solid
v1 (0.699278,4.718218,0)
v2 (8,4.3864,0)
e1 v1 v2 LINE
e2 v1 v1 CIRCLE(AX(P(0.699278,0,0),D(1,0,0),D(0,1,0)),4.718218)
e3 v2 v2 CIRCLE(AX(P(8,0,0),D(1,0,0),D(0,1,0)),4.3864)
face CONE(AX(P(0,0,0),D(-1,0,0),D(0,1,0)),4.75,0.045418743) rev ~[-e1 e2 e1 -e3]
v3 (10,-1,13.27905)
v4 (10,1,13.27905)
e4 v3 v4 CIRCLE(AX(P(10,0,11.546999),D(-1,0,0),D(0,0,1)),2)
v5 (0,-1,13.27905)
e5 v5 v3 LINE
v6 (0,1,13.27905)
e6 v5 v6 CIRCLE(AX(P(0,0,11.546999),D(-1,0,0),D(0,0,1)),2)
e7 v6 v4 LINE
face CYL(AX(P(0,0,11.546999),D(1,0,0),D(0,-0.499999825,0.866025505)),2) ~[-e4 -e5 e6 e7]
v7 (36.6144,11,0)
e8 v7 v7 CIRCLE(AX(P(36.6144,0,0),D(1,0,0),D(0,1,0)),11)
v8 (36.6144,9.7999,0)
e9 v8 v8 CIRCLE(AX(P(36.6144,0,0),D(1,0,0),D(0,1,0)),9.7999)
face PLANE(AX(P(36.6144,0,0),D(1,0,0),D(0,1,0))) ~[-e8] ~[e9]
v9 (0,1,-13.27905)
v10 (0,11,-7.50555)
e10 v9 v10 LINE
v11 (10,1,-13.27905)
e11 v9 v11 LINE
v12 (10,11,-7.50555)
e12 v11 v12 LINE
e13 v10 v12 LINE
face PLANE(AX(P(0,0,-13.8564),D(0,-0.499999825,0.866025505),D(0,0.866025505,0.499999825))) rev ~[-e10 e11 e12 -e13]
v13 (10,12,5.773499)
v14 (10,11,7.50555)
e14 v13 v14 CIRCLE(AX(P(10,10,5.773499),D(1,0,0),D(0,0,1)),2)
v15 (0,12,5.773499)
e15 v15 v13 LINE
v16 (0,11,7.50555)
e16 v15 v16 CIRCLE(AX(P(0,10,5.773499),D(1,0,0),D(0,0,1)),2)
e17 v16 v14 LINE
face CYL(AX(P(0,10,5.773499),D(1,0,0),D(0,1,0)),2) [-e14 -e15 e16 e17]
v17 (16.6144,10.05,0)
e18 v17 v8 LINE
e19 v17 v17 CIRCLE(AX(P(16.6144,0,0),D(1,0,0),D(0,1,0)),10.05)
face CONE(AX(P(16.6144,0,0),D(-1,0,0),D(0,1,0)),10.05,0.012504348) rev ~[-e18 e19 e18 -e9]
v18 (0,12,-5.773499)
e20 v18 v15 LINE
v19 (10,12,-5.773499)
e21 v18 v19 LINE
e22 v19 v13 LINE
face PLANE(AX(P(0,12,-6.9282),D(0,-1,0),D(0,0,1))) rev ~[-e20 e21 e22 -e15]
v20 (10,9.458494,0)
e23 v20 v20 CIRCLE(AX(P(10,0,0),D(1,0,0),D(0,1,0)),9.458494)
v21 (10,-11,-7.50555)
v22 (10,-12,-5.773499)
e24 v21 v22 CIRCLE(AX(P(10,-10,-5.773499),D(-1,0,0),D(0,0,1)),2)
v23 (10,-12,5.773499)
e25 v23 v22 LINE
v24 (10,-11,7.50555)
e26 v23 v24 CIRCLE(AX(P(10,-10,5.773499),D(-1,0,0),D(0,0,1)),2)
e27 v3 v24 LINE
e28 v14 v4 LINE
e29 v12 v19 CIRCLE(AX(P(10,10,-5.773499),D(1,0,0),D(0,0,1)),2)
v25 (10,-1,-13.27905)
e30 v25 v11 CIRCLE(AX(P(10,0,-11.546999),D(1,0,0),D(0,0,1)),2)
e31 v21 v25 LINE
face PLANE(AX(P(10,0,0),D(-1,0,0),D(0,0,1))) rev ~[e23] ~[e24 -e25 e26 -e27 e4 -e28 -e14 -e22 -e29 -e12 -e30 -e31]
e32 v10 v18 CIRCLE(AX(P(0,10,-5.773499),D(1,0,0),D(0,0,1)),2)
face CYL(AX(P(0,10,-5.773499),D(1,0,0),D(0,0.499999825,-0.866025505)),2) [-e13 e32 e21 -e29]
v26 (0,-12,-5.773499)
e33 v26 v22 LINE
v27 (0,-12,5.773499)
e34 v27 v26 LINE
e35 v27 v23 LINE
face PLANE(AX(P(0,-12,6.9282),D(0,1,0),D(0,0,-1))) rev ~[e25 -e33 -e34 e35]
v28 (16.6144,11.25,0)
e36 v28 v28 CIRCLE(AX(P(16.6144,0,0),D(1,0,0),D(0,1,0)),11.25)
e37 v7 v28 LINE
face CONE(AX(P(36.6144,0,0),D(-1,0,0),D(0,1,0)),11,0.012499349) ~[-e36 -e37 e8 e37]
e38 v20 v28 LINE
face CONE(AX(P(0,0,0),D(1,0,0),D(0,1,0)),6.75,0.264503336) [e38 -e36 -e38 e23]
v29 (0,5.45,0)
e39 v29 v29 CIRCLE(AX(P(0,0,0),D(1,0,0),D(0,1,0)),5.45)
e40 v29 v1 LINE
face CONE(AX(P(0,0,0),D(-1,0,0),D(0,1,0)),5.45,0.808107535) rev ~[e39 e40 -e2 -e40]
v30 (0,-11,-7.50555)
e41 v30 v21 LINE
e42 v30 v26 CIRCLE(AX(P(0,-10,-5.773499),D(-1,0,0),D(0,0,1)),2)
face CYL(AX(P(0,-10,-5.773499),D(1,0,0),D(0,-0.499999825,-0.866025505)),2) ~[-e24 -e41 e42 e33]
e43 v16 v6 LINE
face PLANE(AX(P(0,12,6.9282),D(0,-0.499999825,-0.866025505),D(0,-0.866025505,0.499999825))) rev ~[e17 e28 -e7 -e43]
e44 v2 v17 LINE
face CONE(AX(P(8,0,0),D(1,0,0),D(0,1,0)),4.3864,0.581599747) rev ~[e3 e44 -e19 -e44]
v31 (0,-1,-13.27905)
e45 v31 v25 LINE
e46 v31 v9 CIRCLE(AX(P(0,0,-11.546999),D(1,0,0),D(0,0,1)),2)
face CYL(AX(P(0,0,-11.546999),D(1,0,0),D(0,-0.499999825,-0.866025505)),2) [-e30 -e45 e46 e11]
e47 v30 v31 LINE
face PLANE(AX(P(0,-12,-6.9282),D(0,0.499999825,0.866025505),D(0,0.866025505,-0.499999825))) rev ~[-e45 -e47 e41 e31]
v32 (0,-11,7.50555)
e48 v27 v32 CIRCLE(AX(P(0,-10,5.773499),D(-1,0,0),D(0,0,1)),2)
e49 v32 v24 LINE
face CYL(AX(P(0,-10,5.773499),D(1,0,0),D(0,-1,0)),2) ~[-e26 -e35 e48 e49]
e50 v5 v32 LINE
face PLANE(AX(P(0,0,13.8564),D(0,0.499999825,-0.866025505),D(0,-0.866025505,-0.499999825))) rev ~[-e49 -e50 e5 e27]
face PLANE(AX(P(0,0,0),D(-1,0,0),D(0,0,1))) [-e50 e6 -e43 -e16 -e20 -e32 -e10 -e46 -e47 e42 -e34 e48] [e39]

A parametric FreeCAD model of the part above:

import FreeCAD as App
import Part
import Sketcher
Q = App.Units.Quantity


def edges_at(feature, points):
    """Names of the edges that pass closest to the given points."""
    edges = feature.Shape.Edges
    near = lambda p: min(range(len(edges)), key=lambda i: edges[i].distToShape(Part.Vertex(*p))[0])
    return sorted({f"Edge{near(p) + 1}" for p in points})

doc = App.newDocument("Part")
body = doc.addObject("PartDesign::Body", "Body")

# Sketch on XY plane
sketch1 = body.newObject("Sketcher::SketchObject", "Sketch")
sketch1.AttachmentSupport = (doc.getObject("XY_Plane"), [""])
sketch1.MapMode = "FlatFace"
sketch1.addGeometry(Part.LineSegment(App.Vector(0, 6.8, 0), App.Vector(0, 4.8, 0)), False)
sketch1.addGeometry(Part.LineSegment(App.Vector(0, 4.8, 0), App.Vector(8, 4.4, 0)), False)
sketch1.addGeometry(Part.LineSegment(App.Vector(8, 4.4, 0), App.Vector(16.6, 10.1, 0)), False)
sketch1.addGeometry(Part.LineSegment(App.Vector(16.6, 10.1, 0), App.Vector(36.6, 9.8, 0)), False)
sketch1.addGeometry(Part.LineSegment(App.Vector(36.6, 9.8, 0), App.Vector(36.6, 11, 0)), False)
sketch1.addGeometry(Part.LineSegment(App.Vector(36.6, 11, 0), App.Vector(16.6, 11.2, 0)), False)
sketch1.addGeometry(Part.LineSegment(App.Vector(16.6, 11.2, 0), App.Vector(0, 6.8, 0)), False)
sketch1.addConstraint(Sketcher.Constraint("Coincident", 0, 2, 1, 1))
sketch1.addConstraint(Sketcher.Constraint("Coincident", 1, 2, 2, 1))
sketch1.addConstraint(Sketcher.Constraint("Coincident", 2, 2, 3, 1))
sketch1.addConstraint(Sketcher.Constraint("Coincident", 3, 2, 4, 1))
sketch1.addConstraint(Sketcher.Constraint("Coincident", 4, 2, 5, 1))
sketch1.addConstraint(Sketcher.Constraint("Coincident", 5, 2, 6, 1))
sketch1.addConstraint(Sketcher.Constraint("Coincident", 6, 2, 0, 1))
sketch1.addConstraint(Sketcher.Constraint("Vertical", 0))
sketch1.addConstraint(Sketcher.Constraint("Vertical", 4))
sketch1.addConstraint(Sketcher.Constraint("PointOnObject", 0, 2, -2))
sketch1.addConstraint(Sketcher.Constraint("Parallel", 3, 5))
sketch1.addConstraint(Sketcher.Constraint("Vertical", 2, 2, 5, 2))
sketch1.addConstraint(Sketcher.Constraint("DistanceY", 0, 2, 0, 1, Q("2 mm")))
sketch1.addConstraint(Sketcher.Constraint("DistanceY", 4, 1, 4, 2, Q("1.2 mm")))
sketch1.addConstraint(Sketcher.Constraint("DistanceX", -1, 1, 1, 2, Q("8 mm")))
sketch1.addConstraint(Sketcher.Constraint("DistanceY", -1, 1, 4, 2, Q("11 mm")))
sketch1.addConstraint(Sketcher.Constraint("DistanceX", 2, 2, 3, 2, Q("20 mm")))
sketch1.addConstraint(Sketcher.Constraint("DistanceY", 6, 2, 2, 2, Q("3.3 mm")))
sketch1.addConstraint(Sketcher.Constraint("DistanceY", -1, 1, 0, 2, Q("4.75 mm")))
sketch1.addConstraint(Sketcher.Constraint("Distance", 6, Q("17.213 mm")))
sketch1.addConstraint(Sketcher.Constraint("Distance", 1, Q("8.0083 mm")))
revolution = body.newObject("PartDesign::Revolution", "Revolution")
revolution.Profile = sketch1
revolution.ReferenceAxis = (sketch1, ["H_Axis"])
revolution.Angle = 360
doc.recompute()

chamfer = body.newObject("PartDesign::Chamfer", "Chamfer")
chamfer.Base = (revolution, edges_at(revolution, [(0, -4.75, 0)]))
chamfer.Size = 0.7

# Sketch on YZ plane
sketch2 = body.newObject("Sketcher::SketchObject", "Sketch001")
sketch2.AttachmentSupport = (doc.getObject("YZ_Plane"), [""])
sketch2.MapMode = "FlatFace"
sketch2.addGeometry(Part.LineSegment(App.Vector(0, -14, 0), App.Vector(-12, -7, 0)), False)
sketch2.addGeometry(Part.LineSegment(App.Vector(-12, -7, 0), App.Vector(-12, 7, 0)), False)
sketch2.addGeometry(Part.LineSegment(App.Vector(-12, 7, 0), App.Vector(0, 14, 0)), False)
sketch2.addGeometry(Part.LineSegment(App.Vector(0, 14, 0), App.Vector(12, 7, 0)), False)
sketch2.addGeometry(Part.LineSegment(App.Vector(12, 7, 0), App.Vector(12, -7, 0)), False)
sketch2.addGeometry(Part.LineSegment(App.Vector(12, -7, 0), App.Vector(0, -14, 0)), False)
sketch2.addGeometry(Part.Circle(App.Vector(0, 0, 0), App.Vector(0, 0, 1), 7), False)
sketch2.addConstraint(Sketcher.Constraint("Coincident", 0, 2, 1, 1))
sketch2.addConstraint(Sketcher.Constraint("Coincident", 1, 2, 2, 1))
sketch2.addConstraint(Sketcher.Constraint("Coincident", 2, 2, 3, 1))
sketch2.addConstraint(Sketcher.Constraint("Coincident", 3, 2, 4, 1))
sketch2.addConstraint(Sketcher.Constraint("Coincident", 4, 2, 5, 1))
sketch2.addConstraint(Sketcher.Constraint("Coincident", 5, 2, 0, 1))
sketch2.addConstraint(Sketcher.Constraint("Vertical", 1))
sketch2.addConstraint(Sketcher.Constraint("Vertical", 4))
sketch2.addConstraint(Sketcher.Constraint("Coincident", 6, 3, -1, 1))
sketch2.addConstraint(Sketcher.Constraint("Symmetric", 0, 2, 3, 2, -1, 1))
sketch2.addConstraint(Sketcher.Constraint("Symmetric", 2, 2, 5, 2, -1, 1))
sketch2.addConstraint(Sketcher.Constraint("PointOnObject", 2, 2, -2))
sketch2.addConstraint(Sketcher.Constraint("Parallel", 2, 5))
sketch2.addConstraint(Sketcher.Constraint("Horizontal", 1, 2, 3, 2))
sketch2.addConstraint(Sketcher.Constraint("DistanceX", 1, 2, 3, 2, Q("24 mm")))
sketch2.addConstraint(Sketcher.Constraint("Diameter", 6, Q("13.5 mm")))
sketch2.addConstraint(Sketcher.Constraint("Angle", 0, Q("150 deg")))
sketch2.addConstraint(Sketcher.Constraint("DistanceY", 1, 1, 1, 2, Q("13.8564 mm")))
pad1 = body.newObject("PartDesign::Pad", "Pad")
pad1.Profile = sketch2
pad1.Length = 10
doc.recompute()

fillet = body.newObject("PartDesign::Fillet", "Fillet")
fillet.Base = (pad1, edges_at(pad1, [
    (5, 12, 6.928),
    (5, 12, -6.928),
    (5, 0, -13.856),
    (5, -12, -6.928),
    (5, -12, 6.928),
    (5, 0, 13.856),
]))
fillet.Radius = 2

doc.recompute()
